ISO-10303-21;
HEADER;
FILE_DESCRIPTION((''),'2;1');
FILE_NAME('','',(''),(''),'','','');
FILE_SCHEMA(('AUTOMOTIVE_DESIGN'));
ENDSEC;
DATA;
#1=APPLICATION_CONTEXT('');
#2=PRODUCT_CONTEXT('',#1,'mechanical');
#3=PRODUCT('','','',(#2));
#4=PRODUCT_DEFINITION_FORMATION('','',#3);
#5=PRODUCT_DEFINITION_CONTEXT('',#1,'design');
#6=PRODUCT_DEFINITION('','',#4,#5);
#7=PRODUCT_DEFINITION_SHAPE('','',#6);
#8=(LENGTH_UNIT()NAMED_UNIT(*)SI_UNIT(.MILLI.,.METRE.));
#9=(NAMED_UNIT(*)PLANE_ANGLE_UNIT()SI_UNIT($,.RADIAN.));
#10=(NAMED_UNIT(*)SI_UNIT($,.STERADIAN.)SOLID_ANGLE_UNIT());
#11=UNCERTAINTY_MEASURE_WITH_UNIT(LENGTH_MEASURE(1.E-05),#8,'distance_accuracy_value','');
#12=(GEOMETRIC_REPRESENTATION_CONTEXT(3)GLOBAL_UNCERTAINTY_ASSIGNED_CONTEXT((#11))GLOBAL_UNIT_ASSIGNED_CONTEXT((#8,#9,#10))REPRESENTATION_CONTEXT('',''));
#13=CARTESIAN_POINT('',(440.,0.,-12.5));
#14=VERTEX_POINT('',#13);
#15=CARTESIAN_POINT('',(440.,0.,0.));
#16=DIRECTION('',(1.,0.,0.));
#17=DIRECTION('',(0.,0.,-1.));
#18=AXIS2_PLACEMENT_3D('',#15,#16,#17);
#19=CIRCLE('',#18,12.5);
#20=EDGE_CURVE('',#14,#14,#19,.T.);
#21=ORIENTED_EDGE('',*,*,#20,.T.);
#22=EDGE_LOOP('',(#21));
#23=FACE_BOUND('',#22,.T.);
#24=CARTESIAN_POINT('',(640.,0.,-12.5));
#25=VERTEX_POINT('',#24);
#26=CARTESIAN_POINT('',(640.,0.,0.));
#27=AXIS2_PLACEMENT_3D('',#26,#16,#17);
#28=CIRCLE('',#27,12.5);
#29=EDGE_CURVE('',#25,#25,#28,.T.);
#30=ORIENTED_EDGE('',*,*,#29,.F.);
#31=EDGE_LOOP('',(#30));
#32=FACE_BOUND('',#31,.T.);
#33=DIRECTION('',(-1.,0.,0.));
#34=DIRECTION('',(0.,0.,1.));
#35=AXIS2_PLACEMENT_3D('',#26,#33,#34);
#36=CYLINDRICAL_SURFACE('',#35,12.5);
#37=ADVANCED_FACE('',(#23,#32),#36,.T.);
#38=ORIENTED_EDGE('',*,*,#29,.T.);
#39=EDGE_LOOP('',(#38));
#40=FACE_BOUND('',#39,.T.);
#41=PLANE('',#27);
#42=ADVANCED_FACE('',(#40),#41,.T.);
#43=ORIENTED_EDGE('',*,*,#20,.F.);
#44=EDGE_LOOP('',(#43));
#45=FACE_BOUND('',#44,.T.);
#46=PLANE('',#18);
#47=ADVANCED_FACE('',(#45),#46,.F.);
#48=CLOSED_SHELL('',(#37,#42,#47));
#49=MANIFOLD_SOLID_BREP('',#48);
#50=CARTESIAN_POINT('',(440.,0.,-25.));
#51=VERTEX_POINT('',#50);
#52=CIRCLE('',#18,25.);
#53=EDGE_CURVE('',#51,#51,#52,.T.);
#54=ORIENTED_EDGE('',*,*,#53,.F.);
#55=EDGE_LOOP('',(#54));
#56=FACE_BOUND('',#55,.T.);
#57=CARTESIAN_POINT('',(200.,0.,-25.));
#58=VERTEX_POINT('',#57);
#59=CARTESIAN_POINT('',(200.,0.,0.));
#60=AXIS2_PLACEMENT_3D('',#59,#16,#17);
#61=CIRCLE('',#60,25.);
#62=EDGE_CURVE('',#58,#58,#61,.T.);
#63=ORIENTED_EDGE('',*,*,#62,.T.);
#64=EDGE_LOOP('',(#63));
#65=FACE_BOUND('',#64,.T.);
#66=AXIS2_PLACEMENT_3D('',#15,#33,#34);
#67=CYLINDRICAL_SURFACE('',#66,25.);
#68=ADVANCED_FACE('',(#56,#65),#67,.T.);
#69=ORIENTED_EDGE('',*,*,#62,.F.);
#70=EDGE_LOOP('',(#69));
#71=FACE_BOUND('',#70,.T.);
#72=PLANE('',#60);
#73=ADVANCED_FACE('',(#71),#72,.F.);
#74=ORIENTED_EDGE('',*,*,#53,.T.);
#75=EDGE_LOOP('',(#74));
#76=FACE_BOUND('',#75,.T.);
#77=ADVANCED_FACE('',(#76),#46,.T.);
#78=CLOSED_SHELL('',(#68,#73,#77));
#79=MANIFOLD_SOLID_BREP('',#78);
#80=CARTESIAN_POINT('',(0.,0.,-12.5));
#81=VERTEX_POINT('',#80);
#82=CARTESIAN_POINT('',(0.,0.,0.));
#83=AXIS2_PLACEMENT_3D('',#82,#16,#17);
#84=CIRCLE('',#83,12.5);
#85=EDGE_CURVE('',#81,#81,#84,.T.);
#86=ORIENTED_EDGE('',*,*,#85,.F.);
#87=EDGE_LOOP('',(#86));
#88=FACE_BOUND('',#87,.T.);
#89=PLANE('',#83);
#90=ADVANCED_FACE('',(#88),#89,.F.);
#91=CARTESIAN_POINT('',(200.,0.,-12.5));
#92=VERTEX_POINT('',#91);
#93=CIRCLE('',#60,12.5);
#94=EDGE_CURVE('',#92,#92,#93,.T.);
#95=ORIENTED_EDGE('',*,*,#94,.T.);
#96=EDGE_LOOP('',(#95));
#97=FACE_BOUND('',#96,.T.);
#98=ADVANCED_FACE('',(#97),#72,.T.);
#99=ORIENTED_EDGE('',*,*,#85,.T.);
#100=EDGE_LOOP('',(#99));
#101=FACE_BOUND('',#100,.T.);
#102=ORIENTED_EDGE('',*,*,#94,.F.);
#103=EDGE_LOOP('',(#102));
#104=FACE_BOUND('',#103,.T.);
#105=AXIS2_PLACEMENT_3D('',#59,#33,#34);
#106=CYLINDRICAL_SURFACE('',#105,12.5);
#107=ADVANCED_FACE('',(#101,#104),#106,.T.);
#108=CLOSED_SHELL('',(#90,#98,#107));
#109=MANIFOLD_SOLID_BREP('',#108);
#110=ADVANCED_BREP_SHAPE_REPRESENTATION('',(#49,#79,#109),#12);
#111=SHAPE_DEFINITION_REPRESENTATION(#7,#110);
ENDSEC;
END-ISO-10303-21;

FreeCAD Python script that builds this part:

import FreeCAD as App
import Part
import Sketcher
from FreeCAD import Vector

doc = App.newDocument("Part")
params = doc.addObject("Spreadsheet::Sheet", "Params")
for row, (alias, value) in enumerate([
    ("sketch1_diameter", "25 mm"),
    ("pad1_length", "200 mm"),
    ("sketch2_diameter", "50 mm"),
    ("pad2_length", "240 mm"),
    ("sketch3_diameter", "25 mm"),
    ("pad3_length", "200 mm"),
], start=1):
    params.set(f"A{row}", alias)
    params.set(f"B{row}", "=" + value)
    params.setAlias(f"B{row}", alias)

body = doc.addObject("PartDesign::Body", "Body")

# Sketch on YZ plane
sketch1 = doc.addObject("Sketcher::SketchObject", "Sketch")
body.addObject(sketch1)
sketch1.AttachmentSupport = (doc.YZ_Plane, [""])
sketch1.MapMode = "FlatFace"
sketch1.addGeometry(Part.Circle(Vector(0, 0, 0), Vector(0, 0, 1), 12), False)
sketch1.addConstraint([
    Sketcher.Constraint("Coincident", 0, 3, -1, 1),
    Sketcher.Constraint("Diameter", 0, 25.0),
])
sketch1.setExpression("Constraints[1]", "Params.sketch1_diameter")
pad1 = doc.addObject("PartDesign::Pad", "Pad")
body.addObject(pad1)
pad1.Profile = sketch1
pad1.setExpression("Length", "Params.pad1_length")
body2 = doc.addObject("PartDesign::Body", "Body001")

# Sketch on YZ plane
sketch2 = doc.addObject("Sketcher::SketchObject", "Sketch001")
body2.addObject(sketch2)
sketch2.AttachmentSupport = (doc.getObject("YZ_Plane001"), [""])
sketch2.MapMode = "FlatFace"
sketch2.AttachmentOffset = App.Placement(Vector(0, 0, 200), App.Rotation())
sketch2.addGeometry(Part.Circle(Vector(0, 0, 0), Vector(0, 0, 1), 25), False)
sketch2.addConstraint([
    Sketcher.Constraint("Coincident", 0, 3, -1, 1),
    Sketcher.Constraint("Diameter", 0, 50.0),
])
sketch2.setExpression("Constraints[1]", "Params.sketch2_diameter")
pad2 = doc.addObject("PartDesign::Pad", "Pad001")
body2.addObject(pad2)
pad2.Profile = sketch2
pad2.setExpression("Length", "Params.pad2_length")
body3 = doc.addObject("PartDesign::Body", "Body002")

# Sketch on YZ plane
sketch3 = doc.addObject("Sketcher::SketchObject", "Sketch002")
body3.addObject(sketch3)
sketch3.AttachmentSupport = (doc.getObject("YZ_Plane002"), [""])
sketch3.MapMode = "FlatFace"
sketch3.AttachmentOffset = App.Placement(Vector(0, 0, 440), App.Rotation())
sketch3.addGeometry(Part.Circle(Vector(0, 0, 0), Vector(0, 0, 1), 12), False)
sketch3.addConstraint([
    Sketcher.Constraint("Coincident", 0, 3, -1, 1),
    Sketcher.Constraint("Diameter", 0, 25.0),
])
sketch3.setExpression("Constraints[1]", "Params.sketch3_diameter")
pad3 = doc.addObject("PartDesign::Pad", "Pad002")
body3.addObject(pad3)
pad3.Profile = sketch3
pad3.setExpression("Length", "Params.pad3_length")

doc.recompute()
